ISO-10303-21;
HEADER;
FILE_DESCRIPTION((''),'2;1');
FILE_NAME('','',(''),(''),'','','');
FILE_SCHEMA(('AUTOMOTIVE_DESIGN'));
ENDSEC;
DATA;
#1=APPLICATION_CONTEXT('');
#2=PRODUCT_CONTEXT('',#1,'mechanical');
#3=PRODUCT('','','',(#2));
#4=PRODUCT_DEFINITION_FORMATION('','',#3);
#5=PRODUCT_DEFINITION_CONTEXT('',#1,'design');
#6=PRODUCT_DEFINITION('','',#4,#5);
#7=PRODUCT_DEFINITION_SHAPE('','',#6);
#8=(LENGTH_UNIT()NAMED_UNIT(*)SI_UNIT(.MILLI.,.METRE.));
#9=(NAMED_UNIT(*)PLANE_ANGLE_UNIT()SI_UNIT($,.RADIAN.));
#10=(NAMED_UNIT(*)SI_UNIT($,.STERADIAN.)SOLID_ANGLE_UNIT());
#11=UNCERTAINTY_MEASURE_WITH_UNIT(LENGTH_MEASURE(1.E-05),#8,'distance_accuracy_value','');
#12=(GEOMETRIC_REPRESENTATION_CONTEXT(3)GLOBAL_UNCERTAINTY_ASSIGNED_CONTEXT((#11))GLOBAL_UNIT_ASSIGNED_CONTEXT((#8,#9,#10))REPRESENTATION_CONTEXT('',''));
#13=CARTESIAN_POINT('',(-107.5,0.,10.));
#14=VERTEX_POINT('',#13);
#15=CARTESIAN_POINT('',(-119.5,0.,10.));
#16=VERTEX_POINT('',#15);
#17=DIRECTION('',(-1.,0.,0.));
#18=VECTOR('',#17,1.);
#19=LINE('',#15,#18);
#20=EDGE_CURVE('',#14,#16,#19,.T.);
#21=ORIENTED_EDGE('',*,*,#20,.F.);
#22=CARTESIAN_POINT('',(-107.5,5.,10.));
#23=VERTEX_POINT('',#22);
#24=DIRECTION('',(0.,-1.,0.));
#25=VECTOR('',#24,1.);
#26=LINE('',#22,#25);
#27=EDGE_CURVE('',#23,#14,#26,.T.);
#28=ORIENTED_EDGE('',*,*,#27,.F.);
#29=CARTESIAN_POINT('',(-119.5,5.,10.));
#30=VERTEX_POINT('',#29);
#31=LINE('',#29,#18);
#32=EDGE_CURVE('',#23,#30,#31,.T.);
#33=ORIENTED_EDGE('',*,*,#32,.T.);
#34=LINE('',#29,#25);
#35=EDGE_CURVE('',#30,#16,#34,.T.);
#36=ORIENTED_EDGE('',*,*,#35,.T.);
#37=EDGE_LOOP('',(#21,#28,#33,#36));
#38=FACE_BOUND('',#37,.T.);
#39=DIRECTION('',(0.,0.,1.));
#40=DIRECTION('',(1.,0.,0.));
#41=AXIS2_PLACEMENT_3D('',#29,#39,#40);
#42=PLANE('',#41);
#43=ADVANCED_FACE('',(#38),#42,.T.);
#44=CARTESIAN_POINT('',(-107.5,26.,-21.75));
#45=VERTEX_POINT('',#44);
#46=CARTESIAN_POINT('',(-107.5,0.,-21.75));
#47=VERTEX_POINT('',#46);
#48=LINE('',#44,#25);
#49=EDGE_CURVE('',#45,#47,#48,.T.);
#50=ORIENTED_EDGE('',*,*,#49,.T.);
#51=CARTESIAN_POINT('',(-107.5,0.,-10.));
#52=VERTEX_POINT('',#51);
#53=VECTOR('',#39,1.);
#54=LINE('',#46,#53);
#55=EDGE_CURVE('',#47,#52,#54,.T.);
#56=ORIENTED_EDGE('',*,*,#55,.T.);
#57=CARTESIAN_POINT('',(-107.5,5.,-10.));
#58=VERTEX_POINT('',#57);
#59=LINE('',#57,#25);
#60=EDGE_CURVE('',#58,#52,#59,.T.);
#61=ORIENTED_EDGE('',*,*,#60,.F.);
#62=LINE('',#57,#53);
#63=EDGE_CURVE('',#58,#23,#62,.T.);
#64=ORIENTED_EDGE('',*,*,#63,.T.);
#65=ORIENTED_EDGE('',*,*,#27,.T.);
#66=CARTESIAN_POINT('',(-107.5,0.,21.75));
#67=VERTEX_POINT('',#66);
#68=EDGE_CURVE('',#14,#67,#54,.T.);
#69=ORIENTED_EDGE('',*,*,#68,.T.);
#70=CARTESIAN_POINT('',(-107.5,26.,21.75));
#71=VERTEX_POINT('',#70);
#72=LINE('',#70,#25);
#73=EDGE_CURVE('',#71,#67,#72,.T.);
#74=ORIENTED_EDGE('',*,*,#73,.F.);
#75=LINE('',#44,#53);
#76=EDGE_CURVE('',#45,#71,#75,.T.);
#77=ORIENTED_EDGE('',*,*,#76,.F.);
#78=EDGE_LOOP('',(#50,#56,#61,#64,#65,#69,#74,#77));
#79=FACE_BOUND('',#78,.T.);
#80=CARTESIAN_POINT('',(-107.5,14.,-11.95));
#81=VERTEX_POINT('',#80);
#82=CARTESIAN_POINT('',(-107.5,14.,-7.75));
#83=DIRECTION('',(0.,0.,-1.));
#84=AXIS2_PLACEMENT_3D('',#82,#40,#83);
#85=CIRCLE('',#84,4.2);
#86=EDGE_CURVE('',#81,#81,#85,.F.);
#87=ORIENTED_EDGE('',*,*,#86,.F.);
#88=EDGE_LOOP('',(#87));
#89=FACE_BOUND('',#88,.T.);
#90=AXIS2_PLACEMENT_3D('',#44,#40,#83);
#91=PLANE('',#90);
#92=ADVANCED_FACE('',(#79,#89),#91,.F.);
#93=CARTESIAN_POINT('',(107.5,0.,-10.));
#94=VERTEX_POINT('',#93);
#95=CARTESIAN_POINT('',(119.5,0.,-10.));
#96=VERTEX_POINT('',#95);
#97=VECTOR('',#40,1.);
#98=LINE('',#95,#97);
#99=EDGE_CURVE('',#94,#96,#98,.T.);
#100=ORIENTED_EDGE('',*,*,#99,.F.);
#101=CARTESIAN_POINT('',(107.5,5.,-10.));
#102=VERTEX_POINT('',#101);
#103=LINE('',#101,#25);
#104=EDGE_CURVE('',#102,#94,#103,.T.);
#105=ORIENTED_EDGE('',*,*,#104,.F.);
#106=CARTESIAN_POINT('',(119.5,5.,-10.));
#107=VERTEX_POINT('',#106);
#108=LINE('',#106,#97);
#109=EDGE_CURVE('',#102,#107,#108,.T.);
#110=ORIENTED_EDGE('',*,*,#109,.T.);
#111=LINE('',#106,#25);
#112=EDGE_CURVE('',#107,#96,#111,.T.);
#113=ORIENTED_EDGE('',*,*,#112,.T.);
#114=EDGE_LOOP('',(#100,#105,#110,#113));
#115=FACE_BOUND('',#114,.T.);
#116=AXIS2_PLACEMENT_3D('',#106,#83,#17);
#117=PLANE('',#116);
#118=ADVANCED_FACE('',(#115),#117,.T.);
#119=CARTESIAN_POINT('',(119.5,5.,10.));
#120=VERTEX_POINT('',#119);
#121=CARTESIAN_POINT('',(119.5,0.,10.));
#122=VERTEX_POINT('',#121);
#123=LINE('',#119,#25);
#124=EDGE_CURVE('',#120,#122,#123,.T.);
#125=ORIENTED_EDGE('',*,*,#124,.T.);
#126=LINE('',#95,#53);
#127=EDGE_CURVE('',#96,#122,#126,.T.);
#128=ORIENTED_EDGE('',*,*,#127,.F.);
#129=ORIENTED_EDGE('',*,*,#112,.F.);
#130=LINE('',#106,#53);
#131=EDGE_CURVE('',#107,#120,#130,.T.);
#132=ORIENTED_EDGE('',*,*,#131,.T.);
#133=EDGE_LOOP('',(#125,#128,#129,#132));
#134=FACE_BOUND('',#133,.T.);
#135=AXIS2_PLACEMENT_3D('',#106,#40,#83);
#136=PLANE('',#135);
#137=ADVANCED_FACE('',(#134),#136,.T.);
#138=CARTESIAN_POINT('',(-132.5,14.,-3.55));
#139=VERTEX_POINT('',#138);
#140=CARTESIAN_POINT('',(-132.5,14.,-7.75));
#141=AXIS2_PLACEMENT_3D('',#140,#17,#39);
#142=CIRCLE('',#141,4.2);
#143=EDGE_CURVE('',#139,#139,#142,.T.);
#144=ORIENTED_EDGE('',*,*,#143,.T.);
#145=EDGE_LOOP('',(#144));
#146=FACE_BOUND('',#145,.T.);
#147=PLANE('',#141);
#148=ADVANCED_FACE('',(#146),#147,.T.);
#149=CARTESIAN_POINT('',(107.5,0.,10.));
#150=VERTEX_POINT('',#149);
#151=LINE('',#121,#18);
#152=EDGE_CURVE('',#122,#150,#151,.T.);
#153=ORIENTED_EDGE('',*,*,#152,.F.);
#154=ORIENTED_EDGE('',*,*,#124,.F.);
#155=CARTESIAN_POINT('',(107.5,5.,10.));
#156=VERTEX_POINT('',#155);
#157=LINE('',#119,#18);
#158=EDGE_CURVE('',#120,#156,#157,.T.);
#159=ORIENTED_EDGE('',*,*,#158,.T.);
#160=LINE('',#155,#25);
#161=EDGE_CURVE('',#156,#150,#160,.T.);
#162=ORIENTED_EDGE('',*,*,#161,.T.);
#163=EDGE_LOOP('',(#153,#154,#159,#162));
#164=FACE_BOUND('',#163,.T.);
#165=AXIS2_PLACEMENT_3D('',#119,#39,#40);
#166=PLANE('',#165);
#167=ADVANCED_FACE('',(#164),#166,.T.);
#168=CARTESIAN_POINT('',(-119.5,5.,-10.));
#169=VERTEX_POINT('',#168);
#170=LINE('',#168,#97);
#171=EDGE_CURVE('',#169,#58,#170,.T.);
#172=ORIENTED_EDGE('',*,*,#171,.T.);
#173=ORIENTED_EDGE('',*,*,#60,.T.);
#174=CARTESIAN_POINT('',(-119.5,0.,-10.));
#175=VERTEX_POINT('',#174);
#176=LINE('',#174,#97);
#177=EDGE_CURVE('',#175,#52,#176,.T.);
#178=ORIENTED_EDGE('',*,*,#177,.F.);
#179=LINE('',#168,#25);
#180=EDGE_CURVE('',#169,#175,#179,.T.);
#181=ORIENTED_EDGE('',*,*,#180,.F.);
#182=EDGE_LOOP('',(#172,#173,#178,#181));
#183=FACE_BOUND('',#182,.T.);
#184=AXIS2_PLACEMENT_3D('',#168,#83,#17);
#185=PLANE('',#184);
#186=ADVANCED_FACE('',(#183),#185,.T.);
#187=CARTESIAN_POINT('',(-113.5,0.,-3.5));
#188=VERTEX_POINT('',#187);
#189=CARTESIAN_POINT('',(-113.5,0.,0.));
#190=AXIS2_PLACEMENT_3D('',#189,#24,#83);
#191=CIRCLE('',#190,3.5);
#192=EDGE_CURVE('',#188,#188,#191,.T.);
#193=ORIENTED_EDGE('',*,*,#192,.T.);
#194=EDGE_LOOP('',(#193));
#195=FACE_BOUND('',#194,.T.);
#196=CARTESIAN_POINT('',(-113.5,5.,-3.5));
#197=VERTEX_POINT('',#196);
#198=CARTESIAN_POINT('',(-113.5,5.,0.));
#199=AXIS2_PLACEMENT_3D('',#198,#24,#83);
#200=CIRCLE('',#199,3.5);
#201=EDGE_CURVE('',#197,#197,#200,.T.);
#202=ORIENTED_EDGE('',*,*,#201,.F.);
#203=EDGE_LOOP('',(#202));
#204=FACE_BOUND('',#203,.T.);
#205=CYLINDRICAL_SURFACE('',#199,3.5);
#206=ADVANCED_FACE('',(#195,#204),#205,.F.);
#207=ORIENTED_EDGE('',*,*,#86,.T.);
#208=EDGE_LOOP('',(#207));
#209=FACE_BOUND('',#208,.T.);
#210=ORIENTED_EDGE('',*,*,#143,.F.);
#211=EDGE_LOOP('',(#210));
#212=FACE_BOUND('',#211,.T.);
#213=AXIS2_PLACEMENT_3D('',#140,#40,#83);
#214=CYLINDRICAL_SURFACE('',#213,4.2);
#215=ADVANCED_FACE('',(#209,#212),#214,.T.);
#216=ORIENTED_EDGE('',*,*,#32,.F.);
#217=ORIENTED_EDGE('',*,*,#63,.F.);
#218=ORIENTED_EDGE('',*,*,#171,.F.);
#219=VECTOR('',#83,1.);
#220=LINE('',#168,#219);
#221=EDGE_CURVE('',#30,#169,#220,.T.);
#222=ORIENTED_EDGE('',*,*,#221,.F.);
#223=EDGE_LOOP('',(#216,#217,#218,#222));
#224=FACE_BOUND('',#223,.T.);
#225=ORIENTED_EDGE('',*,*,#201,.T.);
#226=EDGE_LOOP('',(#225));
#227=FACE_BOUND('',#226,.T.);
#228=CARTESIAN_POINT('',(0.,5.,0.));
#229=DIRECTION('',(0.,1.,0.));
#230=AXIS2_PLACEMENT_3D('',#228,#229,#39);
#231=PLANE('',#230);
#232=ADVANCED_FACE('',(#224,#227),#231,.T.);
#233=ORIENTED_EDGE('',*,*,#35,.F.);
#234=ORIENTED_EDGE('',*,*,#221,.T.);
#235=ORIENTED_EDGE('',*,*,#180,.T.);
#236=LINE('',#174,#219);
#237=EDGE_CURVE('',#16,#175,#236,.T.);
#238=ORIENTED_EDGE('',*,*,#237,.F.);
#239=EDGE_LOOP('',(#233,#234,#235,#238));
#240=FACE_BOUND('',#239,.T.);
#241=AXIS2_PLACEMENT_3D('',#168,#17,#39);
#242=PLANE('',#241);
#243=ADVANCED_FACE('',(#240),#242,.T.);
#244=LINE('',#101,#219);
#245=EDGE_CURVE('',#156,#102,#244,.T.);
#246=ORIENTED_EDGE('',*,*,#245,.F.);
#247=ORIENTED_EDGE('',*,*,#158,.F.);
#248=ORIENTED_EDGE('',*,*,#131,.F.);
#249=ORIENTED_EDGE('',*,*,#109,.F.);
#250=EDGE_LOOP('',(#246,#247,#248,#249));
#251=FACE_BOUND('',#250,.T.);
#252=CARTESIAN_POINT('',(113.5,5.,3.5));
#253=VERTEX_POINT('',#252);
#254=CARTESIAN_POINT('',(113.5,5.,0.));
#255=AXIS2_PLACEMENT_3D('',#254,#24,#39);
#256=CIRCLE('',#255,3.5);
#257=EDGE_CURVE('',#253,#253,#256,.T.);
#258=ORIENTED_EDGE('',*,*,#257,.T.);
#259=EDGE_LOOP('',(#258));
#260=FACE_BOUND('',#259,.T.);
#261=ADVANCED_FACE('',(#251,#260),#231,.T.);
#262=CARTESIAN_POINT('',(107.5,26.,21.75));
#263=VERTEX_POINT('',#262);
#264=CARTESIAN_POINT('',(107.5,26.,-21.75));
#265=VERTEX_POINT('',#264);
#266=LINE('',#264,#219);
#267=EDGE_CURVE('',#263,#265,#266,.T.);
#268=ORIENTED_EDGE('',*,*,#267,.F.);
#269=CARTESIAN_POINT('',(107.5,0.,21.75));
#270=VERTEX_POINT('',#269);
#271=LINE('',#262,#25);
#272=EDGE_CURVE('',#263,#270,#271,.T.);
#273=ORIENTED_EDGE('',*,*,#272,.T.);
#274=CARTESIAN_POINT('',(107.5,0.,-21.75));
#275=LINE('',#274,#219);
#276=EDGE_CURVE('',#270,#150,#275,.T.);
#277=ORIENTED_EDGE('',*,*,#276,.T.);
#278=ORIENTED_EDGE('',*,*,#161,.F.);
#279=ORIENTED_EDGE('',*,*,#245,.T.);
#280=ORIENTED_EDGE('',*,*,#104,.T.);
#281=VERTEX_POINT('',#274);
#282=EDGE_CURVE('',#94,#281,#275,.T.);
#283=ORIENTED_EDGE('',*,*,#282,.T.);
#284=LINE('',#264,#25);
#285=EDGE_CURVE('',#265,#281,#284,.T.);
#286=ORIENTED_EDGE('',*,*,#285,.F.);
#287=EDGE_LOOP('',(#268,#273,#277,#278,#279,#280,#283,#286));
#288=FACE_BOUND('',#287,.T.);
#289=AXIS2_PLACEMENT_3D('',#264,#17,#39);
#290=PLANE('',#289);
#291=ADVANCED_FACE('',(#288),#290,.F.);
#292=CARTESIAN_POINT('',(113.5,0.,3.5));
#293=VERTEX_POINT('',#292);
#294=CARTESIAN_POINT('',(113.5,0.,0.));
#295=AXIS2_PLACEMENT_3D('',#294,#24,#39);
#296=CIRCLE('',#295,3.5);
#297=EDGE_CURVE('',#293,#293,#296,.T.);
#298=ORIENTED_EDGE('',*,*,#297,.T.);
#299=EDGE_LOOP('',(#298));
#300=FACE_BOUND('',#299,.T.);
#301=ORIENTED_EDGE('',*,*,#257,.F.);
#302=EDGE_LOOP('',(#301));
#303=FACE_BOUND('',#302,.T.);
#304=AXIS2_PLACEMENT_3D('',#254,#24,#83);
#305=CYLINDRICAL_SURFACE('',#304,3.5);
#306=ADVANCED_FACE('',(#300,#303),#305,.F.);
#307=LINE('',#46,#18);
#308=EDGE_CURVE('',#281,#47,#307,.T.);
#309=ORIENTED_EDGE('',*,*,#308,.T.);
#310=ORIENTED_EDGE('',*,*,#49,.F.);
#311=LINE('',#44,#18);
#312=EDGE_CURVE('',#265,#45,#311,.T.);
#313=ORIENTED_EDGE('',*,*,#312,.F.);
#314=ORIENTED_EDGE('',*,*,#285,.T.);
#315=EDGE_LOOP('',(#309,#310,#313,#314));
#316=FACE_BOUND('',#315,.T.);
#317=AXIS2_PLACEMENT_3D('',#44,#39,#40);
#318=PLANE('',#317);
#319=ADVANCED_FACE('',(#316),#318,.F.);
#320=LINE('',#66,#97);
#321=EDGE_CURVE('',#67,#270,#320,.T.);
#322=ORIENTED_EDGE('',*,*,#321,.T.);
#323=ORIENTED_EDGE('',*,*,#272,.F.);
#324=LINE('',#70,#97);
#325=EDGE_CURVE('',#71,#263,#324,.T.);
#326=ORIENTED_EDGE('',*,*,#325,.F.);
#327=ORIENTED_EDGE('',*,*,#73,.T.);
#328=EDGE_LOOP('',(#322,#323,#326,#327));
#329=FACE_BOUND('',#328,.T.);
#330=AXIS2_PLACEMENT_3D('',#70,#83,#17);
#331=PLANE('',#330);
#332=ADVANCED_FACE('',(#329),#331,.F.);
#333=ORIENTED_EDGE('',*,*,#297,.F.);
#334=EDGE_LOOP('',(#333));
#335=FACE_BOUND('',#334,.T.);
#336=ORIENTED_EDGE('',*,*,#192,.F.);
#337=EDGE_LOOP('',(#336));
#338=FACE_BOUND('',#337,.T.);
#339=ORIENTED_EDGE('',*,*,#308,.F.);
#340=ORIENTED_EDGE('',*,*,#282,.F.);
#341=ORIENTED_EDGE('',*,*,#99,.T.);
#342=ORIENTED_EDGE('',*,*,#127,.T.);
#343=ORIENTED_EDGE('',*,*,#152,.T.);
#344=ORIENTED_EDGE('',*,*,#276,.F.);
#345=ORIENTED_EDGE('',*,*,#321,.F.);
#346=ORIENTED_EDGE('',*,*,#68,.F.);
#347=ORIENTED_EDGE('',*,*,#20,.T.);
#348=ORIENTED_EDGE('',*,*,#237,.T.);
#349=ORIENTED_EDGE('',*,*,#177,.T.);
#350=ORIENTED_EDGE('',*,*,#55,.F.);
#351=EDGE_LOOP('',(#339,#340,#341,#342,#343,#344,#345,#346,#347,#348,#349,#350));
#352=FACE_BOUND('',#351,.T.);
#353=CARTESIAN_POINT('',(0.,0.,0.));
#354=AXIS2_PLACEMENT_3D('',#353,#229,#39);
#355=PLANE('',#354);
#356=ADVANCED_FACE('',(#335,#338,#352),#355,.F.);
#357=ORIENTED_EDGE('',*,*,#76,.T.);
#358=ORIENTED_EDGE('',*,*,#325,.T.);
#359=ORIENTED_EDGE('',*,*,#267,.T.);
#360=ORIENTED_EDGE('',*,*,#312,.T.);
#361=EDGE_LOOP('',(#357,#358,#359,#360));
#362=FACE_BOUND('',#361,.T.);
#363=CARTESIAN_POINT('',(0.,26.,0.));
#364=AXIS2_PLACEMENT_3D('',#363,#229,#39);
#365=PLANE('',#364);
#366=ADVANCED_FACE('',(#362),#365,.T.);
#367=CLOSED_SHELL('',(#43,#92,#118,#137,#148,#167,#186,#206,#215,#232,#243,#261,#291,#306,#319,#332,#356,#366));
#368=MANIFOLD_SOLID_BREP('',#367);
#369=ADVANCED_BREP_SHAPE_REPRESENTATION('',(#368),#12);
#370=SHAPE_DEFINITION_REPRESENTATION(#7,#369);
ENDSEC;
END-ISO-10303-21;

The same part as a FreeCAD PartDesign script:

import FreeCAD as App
import Part
import Sketcher
from FreeCAD import Vector

doc = App.newDocument("Part")
params = doc.addObject("Spreadsheet::Sheet", "Params")
for row, (alias, value) in enumerate([
    ("sketch1_width", "215 mm"),
    ("sketch1_height", "43.5 mm"),
    ("pad1_length", "26 mm"),
    ("sketch2_diameter", "7 mm"),
    ("sketch2_width", "12 mm"),
    ("sketch2_height", "20 mm"),
    ("pad2_length", "5 mm"),
    ("sketch3_diameter", "8.4 mm"),
    ("pad3_length", "25 mm"),
], start=1):
    params.set(f"A{row}", alias)
    params.set(f"B{row}", "=" + value)
    params.setAlias(f"B{row}", alias)

body = doc.addObject("PartDesign::Body", "Body")

sketch1 = doc.addObject("Sketcher::SketchObject", "Sketch")
body.addObject(sketch1)
sketch1.AttachmentSupport = (doc.XZ_Plane, [""])
sketch1.MapMode = "FlatFace"
sketch1.addGeometry(Part.LineSegment(Vector(-108, -22, 0), Vector(-108, 22, 0)), False)
sketch1.addGeometry(Part.LineSegment(Vector(-108, 22, 0), Vector(108, 22, 0)), False)
sketch1.addGeometry(Part.LineSegment(Vector(108, 22, 0), Vector(108, -22, 0)), False)
sketch1.addGeometry(Part.LineSegment(Vector(108, -22, 0), Vector(-108, -22, 0)), False)
sketch1.addConstraint(Sketcher.Constraint("Coincident", 0, 2, 1, 1))
sketch1.addConstraint(Sketcher.Constraint("Coincident", 1, 2, 2, 1))
sketch1.addConstraint(Sketcher.Constraint("Coincident", 2, 2, 3, 1))
sketch1.addConstraint(Sketcher.Constraint("Coincident", 3, 2, 0, 1))
sketch1.addConstraint(Sketcher.Constraint("Vertical", 0))
sketch1.addConstraint(Sketcher.Constraint("Horizontal", 1))
sketch1.addConstraint(Sketcher.Constraint("Vertical", 2))
sketch1.addConstraint(Sketcher.Constraint("Horizontal", 3))
sketch1.addConstraint(Sketcher.Constraint("Symmetric", 0, 2, 2, 2, -1, 1))
sketch1.addConstraint(Sketcher.Constraint("DistanceX", 1, 1, 1, 2, 215.0))
sketch1.addConstraint(Sketcher.Constraint("DistanceY", 0, 1, 0, 2, 43.5))
sketch1.setExpression("Constraints[9]", "Params.sketch1_width")
sketch1.setExpression("Constraints[10]", "Params.sketch1_height")
pad1 = doc.addObject("PartDesign::Pad", "Pad")
body.addObject(pad1)
pad1.Profile = sketch1
pad1.setExpression("Length", "Params.pad1_length")
pad1.Reversed = True

sketch2 = doc.addObject("Sketcher::SketchObject", "Sketch001")
body.addObject(sketch2)
sketch2.AttachmentSupport = (doc.XZ_Plane, [""])
sketch2.MapMode = "FlatFace"
sketch2.addGeometry(Part.LineSegment(Vector(-119.5, 10, 0), Vector(-119.5, -10, 0)), False)
sketch2.addGeometry(Part.LineSegment(Vector(-119.5, -10, 0), Vector(-107.5, -10, 0)), False)
sketch2.addGeometry(Part.LineSegment(Vector(-107.5, -10, 0), Vector(-107.5, 10, 0)), False)
sketch2.addGeometry(Part.LineSegment(Vector(-107.5, 10, 0), Vector(-119.5, 10, 0)), False)
sketch2.addGeometry(Part.Circle(Vector(-113.5, 0, 0), Vector(0, 0, 1), 3.5), False)
sketch2.addGeometry(Part.LineSegment(Vector(107.5, 10, 0), Vector(107.5, -10, 0)), False)
sketch2.addGeometry(Part.LineSegment(Vector(107.5, -10, 0), Vector(119.5, -10, 0)), False)
sketch2.addGeometry(Part.LineSegment(Vector(119.5, -10, 0), Vector(119.5, 10, 0)), False)
sketch2.addGeometry(Part.LineSegment(Vector(119.5, 10, 0), Vector(107.5, 10, 0)), False)
sketch2.addGeometry(Part.Circle(Vector(113.5, 0, 0), Vector(0, 0, 1), 3.5), False)
sketch2.addConstraint(Sketcher.Constraint("Coincident", 0, 2, 1, 1))
sketch2.addConstraint(Sketcher.Constraint("Coincident", 1, 2, 2, 1))
sketch2.addConstraint(Sketcher.Constraint("Coincident", 2, 2, 3, 1))
sketch2.addConstraint(Sketcher.Constraint("Coincident", 3, 2, 0, 1))
sketch2.addConstraint(Sketcher.Constraint("Coincident", 5, 2, 6, 1))
sketch2.addConstraint(Sketcher.Constraint("Coincident", 6, 2, 7, 1))
sketch2.addConstraint(Sketcher.Constraint("Coincident", 7, 2, 8, 1))
sketch2.addConstraint(Sketcher.Constraint("Coincident", 8, 2, 5, 1))
sketch2.addConstraint(Sketcher.Constraint("Vertical", 0))
sketch2.addConstraint(Sketcher.Constraint("Horizontal", 1))
sketch2.addConstraint(Sketcher.Constraint("Vertical", 2))
sketch2.addConstraint(Sketcher.Constraint("Horizontal", 3))
sketch2.addConstraint(Sketcher.Constraint("Vertical", 5))
sketch2.addConstraint(Sketcher.Constraint("Horizontal", 6))
sketch2.addConstraint(Sketcher.Constraint("Vertical", 7))
sketch2.addConstraint(Sketcher.Constraint("Horizontal", 8))
sketch2.addConstraint(Sketcher.Constraint("Equal", 4, 9))
sketch2.addConstraint(Sketcher.Constraint("Symmetric", 4, 3, 9, 3, -1, 1))
sketch2.addConstraint(Sketcher.Constraint("Symmetric", 2, 2, 5, 2, -1, 1))
sketch2.addConstraint(Sketcher.Constraint("Symmetric", 0, 2, 7, 2, -1, 1))
sketch2.addConstraint(Sketcher.Constraint("PointOnObject", 4, 3, -1))
sketch2.addConstraint(Sketcher.Constraint("Horizontal", 1, 2, 5, 2))
sketch2.addConstraint(Sketcher.Constraint("Diameter", 4, 7.0))
sketch2.addConstraint(Sketcher.Constraint("DistanceX", 1, 1, 1, 2, 12.0))
sketch2.addConstraint(Sketcher.Constraint("DistanceY", 0, 2, 0, 1, 20.0))
sketch2.addConstraint(Sketcher.Constraint("DistanceX", 4, 3, 9, 3, 227.0))
sketch2.addConstraint(Sketcher.Constraint("DistanceX", 0, 2, 4, 3, 6.0))
sketch2.setExpression("Constraints[22]", "Params.sketch2_diameter")
sketch2.setExpression("Constraints[23]", "Params.sketch2_width")
sketch2.setExpression("Constraints[24]", "Params.sketch2_height")
pad2 = doc.addObject("PartDesign::Pad", "Pad001")
body.addObject(pad2)
pad2.Profile = sketch2
pad2.setExpression("Length", "Params.pad2_length")
pad2.Reversed = True

sketch3 = doc.addObject("Sketcher::SketchObject", "Sketch002")
body.addObject(sketch3)
sketch3.AttachmentSupport = (doc.YZ_Plane, [""])
sketch3.MapMode = "FlatFace"
sketch3.AttachmentOffset = App.Placement(Vector(0, 0, -107.5), App.Rotation())
sketch3.addGeometry(Part.Circle(Vector(14, -7.8, 0), Vector(0, 0, 1), 4.2), False)
sketch3.addConstraint(Sketcher.Constraint("Diameter", 0, 8.4))
sketch3.addConstraint(Sketcher.Constraint("DistanceX", -1, 1, 0, 3, 14.0))
sketch3.addConstraint(Sketcher.Constraint("DistanceY", 0, 3, -1, 1, 7.75))
sketch3.setExpression("Constraints[0]", "Params.sketch3_diameter")
pad3 = doc.addObject("PartDesign::Pad", "Pad002")
body.addObject(pad3)
pad3.Profile = sketch3
pad3.setExpression("Length", "Params.pad3_length")
pad3.Reversed = True

doc.recompute()
